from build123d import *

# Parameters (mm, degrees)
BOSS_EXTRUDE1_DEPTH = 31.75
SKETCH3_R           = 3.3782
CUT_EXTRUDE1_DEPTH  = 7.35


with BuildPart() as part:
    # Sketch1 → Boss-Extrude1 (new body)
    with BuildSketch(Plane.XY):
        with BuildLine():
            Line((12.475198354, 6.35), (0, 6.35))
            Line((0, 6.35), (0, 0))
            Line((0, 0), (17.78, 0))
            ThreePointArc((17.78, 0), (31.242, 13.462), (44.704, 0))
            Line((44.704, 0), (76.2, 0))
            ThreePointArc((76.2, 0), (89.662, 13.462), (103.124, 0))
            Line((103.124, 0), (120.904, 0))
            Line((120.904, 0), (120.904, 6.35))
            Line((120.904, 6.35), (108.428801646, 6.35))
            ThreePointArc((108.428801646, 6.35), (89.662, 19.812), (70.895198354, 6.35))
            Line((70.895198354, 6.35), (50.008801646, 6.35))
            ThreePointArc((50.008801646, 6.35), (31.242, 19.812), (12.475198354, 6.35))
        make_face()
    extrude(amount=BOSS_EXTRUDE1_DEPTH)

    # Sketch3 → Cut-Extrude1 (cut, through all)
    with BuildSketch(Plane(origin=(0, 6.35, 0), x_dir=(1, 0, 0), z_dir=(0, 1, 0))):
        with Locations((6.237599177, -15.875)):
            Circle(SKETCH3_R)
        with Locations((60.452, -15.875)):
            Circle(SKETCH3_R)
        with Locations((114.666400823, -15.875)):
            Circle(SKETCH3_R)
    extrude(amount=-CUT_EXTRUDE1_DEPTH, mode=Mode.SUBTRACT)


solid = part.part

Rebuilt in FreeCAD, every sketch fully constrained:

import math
import FreeCAD as App
import Part
import Sketcher
Q = App.Units.Quantity

doc = App.newDocument("Part")
body = doc.addObject("PartDesign::Body", "Body")

# Sketch on XY plane
sketch1 = doc.addObject("Sketcher::SketchObject", "Sketch")
body.addObject(sketch1)
sketch1.AttachmentSupport = (doc.XY_Plane, [""])
sketch1.MapMode = "FlatFace"
sketch1.addGeometry(Part.LineSegment(App.Vector(12, 6, 0), App.Vector(0, 6, 0)), False)
sketch1.addGeometry(Part.LineSegment(App.Vector(0, 6, 0), App.Vector(0, 0, 0)), False)
sketch1.addGeometry(Part.LineSegment(App.Vector(0, 0, 0), App.Vector(18, 0, 0)), False)
sketch1.addGeometry(Part.ArcOfCircle(Part.Circle(App.Vector(31, 0, 0), App.Vector(0, 0, 1), 13), math.radians(0), math.radians(180)), False)
sketch1.addGeometry(Part.LineSegment(App.Vector(45, 0, 0), App.Vector(76, 0, 0)), False)
sketch1.addGeometry(Part.ArcOfCircle(Part.Circle(App.Vector(90, 0, 0), App.Vector(0, 0, 1), 13), math.radians(0), math.radians(180)), False)
sketch1.addGeometry(Part.LineSegment(App.Vector(103, 0, 0), App.Vector(121, 0, 0)), False)
sketch1.addGeometry(Part.LineSegment(App.Vector(121, 0, 0), App.Vector(121, 6, 0)), False)
sketch1.addGeometry(Part.LineSegment(App.Vector(121, 6, 0), App.Vector(108, 6, 0)), False)
sketch1.addGeometry(Part.ArcOfCircle(Part.Circle(App.Vector(90, 0, 0), App.Vector(0, 0, 1), 20), math.radians(19), math.radians(161)), False)
sketch1.addGeometry(Part.LineSegment(App.Vector(71, 6, 0), App.Vector(50, 6, 0)), False)
sketch1.addGeometry(Part.ArcOfCircle(Part.Circle(App.Vector(31, 0, 0), App.Vector(0, 0, 1), 20), math.radians(19), math.radians(161)), False)
sketch1.addConstraint(Sketcher.Constraint("Coincident", 0, 2, 1, 1))
sketch1.addConstraint(Sketcher.Constraint("Coincident", 1, 2, 2, 1))
sketch1.addConstraint(Sketcher.Constraint("Coincident", 2, 2, 3, 2))
sketch1.addConstraint(Sketcher.Constraint("Coincident", 3, 1, 4, 1))
sketch1.addConstraint(Sketcher.Constraint("Coincident", 4, 2, 5, 2))
sketch1.addConstraint(Sketcher.Constraint("Coincident", 5, 1, 6, 1))
sketch1.addConstraint(Sketcher.Constraint("Coincident", 6, 2, 7, 1))
sketch1.addConstraint(Sketcher.Constraint("Coincident", 7, 2, 8, 1))
sketch1.addConstraint(Sketcher.Constraint("Coincident", 8, 2, 9, 1))
sketch1.addConstraint(Sketcher.Constraint("Coincident", 9, 2, 10, 1))
sketch1.addConstraint(Sketcher.Constraint("Coincident", 10, 2, 11, 1))
sketch1.addConstraint(Sketcher.Constraint("Coincident", 11, 2, 0, 1))
sketch1.addConstraint(Sketcher.Constraint("Horizontal", 0))
sketch1.addConstraint(Sketcher.Constraint("Vertical", 1))
sketch1.addConstraint(Sketcher.Constraint("Horizontal", 2))
sketch1.addConstraint(Sketcher.Constraint("Horizontal", 4))
sketch1.addConstraint(Sketcher.Constraint("Horizontal", 6))
sketch1.addConstraint(Sketcher.Constraint("Vertical", 7))
sketch1.addConstraint(Sketcher.Constraint("Horizontal", 8))
sketch1.addConstraint(Sketcher.Constraint("Horizontal", 10))
sketch1.addConstraint(Sketcher.Constraint("Coincident", 1, 2, -1, 1))
sketch1.addConstraint(Sketcher.Constraint("Coincident", 9, 3, 5, 3))
sketch1.addConstraint(Sketcher.Constraint("Coincident", 11, 3, 3, 3))
sketch1.addConstraint(Sketcher.Constraint("Equal", 3, 5))
sketch1.addConstraint(Sketcher.Constraint("Equal", 9, 11))
sketch1.addConstraint(Sketcher.Constraint("PointOnObject", 3, 3, -1))
sketch1.addConstraint(Sketcher.Constraint("PointOnObject", 5, 3, -1))
sketch1.addConstraint(Sketcher.Constraint("PointOnObject", 3, 1, -1))
sketch1.addConstraint(Sketcher.Constraint("PointOnObject", 5, 1, -1))
sketch1.addConstraint(Sketcher.Constraint("Horizontal", 0, 2, 7, 2))
sketch1.addConstraint(Sketcher.Constraint("Horizontal", 8, 2, 9, 2))
sketch1.addConstraint(Sketcher.Constraint("Equal", 2, 6))
sketch1.addConstraint(Sketcher.Constraint("Radius", 3, Q("0.53 in")))
sketch1.addConstraint(Sketcher.Constraint("Radius", 9, Q("0.78 in")))
sketch1.addConstraint(Sketcher.Constraint("DistanceX", 2, 1, 2, 2, Q("0.7 in")))
sketch1.addConstraint(Sketcher.Constraint("DistanceX", -1, 1, 4, 2, Q("3 in")))
sketch1.addConstraint(Sketcher.Constraint("DistanceY", 1, 2, 1, 1, Q("0.25 in")))
pad1 = doc.addObject("PartDesign::Pad", "Pad")
body.addObject(pad1)
pad1.Profile = sketch1
pad1.Length = Q("1.25 in")

# Sketch on XZ plane
sketch2 = doc.addObject("Sketcher::SketchObject", "Sketch001")
body.addObject(sketch2)
sketch2.AttachmentSupport = (doc.XZ_Plane, [""])
sketch2.MapMode = "FlatFace"
sketch2.AttachmentOffset = App.Placement(App.Vector(0, 0, -0.25 * 25.4), App.Rotation())
sketch2.addGeometry(Part.Circle(App.Vector(6.2, 15.9, 0), App.Vector(0, 0, 1), 3.4), False)
sketch2.addGeometry(Part.Circle(App.Vector(60.5, 15.9, 0), App.Vector(0, 0, 1), 3.4), False)
sketch2.addGeometry(Part.Circle(App.Vector(114.7, 15.9, 0), App.Vector(0, 0, 1), 3.4), False)
sketch2.addConstraint(Sketcher.Constraint("Equal", 0, 1))
sketch2.addConstraint(Sketcher.Constraint("Equal", 1, 2))
sketch2.addConstraint(Sketcher.Constraint("Horizontal", 0, 3, 1, 3))
sketch2.addConstraint(Sketcher.Constraint("Horizontal", 1, 3, 2, 3))
sketch2.addConstraint(Sketcher.Constraint("Diameter", 0, Q("0.266 in")))
sketch2.addConstraint(Sketcher.Constraint("DistanceX", -1, 1, 1, 3, Q("2.38 in")))
sketch2.addConstraint(Sketcher.Constraint("DistanceY", -1, 1, 0, 3, Q("0.625 in")))
sketch2.addConstraint(Sketcher.Constraint("DistanceX", -1, 1, 0, 3, Q("6.237599 mm")))
sketch2.addConstraint(Sketcher.Constraint("DistanceX", -1, 1, 2, 3, Q("114.666401 mm")))
pocket1 = doc.addObject("PartDesign::Pocket", "Pocket")
body.addObject(pocket1)
pocket1.Profile = sketch2
pocket1.Type = "ThroughAll"
pocket1.Reversed = True

doc.recompute()
